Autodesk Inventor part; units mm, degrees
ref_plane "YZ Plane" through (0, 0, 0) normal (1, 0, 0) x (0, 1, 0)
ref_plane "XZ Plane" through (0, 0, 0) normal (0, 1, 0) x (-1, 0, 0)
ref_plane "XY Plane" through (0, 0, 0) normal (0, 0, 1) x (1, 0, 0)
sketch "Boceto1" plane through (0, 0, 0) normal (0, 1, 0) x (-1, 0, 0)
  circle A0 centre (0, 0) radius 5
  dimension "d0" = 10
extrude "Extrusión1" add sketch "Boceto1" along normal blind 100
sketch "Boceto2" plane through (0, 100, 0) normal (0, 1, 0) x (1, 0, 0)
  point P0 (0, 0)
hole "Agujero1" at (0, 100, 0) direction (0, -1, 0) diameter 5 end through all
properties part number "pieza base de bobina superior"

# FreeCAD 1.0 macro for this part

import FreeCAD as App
import Part
import Sketcher
Q = App.Units.Quantity

doc = App.newDocument("Part")
body = doc.addObject("PartDesign::Body", "Body")

# Sketch on XZ plane
sketch1 = body.newObject("Sketcher::SketchObject", "Sketch")
sketch1.AttachmentSupport = (doc.getObject("XZ_Plane"), [""])
sketch1.MapMode = "FlatFace"
sketch1.addGeometry(Part.Circle(App.Vector(0, 0, 0), App.Vector(0, 0, 1), 5), False)
sketch1.addConstraint(Sketcher.Constraint("Coincident", 0, 3, -1, 1))
sketch1.addConstraint(Sketcher.Constraint("Diameter", 0, Q("10 mm")))
pad1 = body.newObject("PartDesign::Pad", "Pad")
pad1.Profile = sketch1
pad1.Length = 100
pad1.Reversed = True

# Sketch on XZ plane
sketch2 = body.newObject("Sketcher::SketchObject", "Sketch001")
sketch2.AttachmentSupport = (doc.getObject("XZ_Plane"), [""])
sketch2.MapMode = "FlatFace"
sketch2.AttachmentOffset = App.Placement(App.Vector(0, 0, -100), App.Rotation())
sketch2.addGeometry(Part.Circle(App.Vector(0, 0, 0), App.Vector(0, 0, 1), 2.5), False)
sketch2.addConstraint(Sketcher.Constraint("Coincident", 0, 3, -1, 1))
sketch2.addConstraint(Sketcher.Constraint("Diameter", 0, Q("5 mm")))
doc.recompute()
hole = body.newObject("PartDesign::Hole", "Hole")
hole.Profile = sketch2
hole.ThreadType = "None"
hole.Diameter = 5
hole.DepthType = "ThroughAll"
hole.Reversed = True

doc.recompute()
